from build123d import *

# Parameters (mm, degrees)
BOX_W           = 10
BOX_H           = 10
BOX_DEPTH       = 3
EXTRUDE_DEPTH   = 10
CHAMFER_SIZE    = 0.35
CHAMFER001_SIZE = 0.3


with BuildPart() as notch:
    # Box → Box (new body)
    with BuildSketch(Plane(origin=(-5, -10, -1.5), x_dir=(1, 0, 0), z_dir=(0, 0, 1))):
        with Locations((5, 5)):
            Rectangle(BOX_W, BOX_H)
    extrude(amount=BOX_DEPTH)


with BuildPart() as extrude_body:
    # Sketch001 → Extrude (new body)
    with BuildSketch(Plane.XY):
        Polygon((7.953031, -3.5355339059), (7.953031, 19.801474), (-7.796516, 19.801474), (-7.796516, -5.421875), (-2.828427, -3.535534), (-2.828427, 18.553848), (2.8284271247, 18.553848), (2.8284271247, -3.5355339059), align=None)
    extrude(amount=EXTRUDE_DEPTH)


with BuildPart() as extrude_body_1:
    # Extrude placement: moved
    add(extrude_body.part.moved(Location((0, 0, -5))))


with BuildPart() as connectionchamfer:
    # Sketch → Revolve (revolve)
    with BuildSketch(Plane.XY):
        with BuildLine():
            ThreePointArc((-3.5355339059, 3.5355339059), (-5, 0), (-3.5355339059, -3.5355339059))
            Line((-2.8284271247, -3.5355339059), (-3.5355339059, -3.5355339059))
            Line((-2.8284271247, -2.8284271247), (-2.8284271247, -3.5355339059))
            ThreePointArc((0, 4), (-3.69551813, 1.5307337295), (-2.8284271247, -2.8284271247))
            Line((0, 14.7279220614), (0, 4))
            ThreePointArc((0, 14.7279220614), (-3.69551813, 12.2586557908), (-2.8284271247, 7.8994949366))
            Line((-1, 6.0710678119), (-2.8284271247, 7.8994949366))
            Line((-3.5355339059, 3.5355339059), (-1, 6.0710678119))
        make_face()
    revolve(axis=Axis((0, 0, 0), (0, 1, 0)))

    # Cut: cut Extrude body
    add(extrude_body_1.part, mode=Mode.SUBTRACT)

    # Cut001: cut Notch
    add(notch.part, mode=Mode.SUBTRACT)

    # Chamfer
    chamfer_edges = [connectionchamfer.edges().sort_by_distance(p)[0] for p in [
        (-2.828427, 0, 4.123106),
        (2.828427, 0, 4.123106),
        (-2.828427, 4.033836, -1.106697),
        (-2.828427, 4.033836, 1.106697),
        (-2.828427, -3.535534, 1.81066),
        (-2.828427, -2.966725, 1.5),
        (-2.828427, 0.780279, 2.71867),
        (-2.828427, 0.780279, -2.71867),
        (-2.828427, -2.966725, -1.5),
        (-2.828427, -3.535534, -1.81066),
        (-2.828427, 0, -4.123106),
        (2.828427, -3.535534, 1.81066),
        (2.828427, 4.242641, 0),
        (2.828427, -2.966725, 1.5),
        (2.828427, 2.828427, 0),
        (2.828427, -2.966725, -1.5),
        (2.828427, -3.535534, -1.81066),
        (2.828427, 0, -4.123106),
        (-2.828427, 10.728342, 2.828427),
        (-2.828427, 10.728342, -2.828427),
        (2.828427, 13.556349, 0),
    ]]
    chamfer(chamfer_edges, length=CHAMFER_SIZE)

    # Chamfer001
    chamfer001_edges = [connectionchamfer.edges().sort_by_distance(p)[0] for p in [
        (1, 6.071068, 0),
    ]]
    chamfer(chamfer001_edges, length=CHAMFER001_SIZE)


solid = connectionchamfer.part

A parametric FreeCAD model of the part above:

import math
import FreeCAD as App
import Part
import Sketcher
Q = App.Units.Quantity


def edges_at(feature, points):
    """Names of the edges that pass closest to the given points."""
    edges = feature.Shape.Edges
    near = lambda p: min(range(len(edges)), key=lambda i: edges[i].distToShape(Part.Vertex(*p))[0])
    return sorted({f"Edge{near(p) + 1}" for p in points})

doc = App.newDocument("Part")
body = doc.addObject("PartDesign::Body", "Body")

sketch1 = body.newObject("Sketcher::SketchObject", "Sketch")
sketch1.AttachmentSupport = (doc.getObject("XY_Plane"), [""])
sketch1.MapMode = "FlatFace"
sketch1.AttachmentOffset = App.Placement(App.Vector(0, 0, -1.5), App.Rotation())
sketch1.addGeometry([
    Part.LineSegment(App.Vector(-5, 0, 0), App.Vector(-5, -10, 0)),
    Part.LineSegment(App.Vector(-5, -10, 0), App.Vector(5, -10, 0)),
    Part.LineSegment(App.Vector(5, -10, 0), App.Vector(5, 0, 0)),
    Part.LineSegment(App.Vector(5, 0, 0), App.Vector(-5, 0, 0)),
], False)
sketch1.addConstraint([
    Sketcher.Constraint("Coincident", 0, 2, 1, 1),
    Sketcher.Constraint("Coincident", 1, 2, 2, 1),
    Sketcher.Constraint("Coincident", 2, 2, 3, 1),
    Sketcher.Constraint("Coincident", 3, 2, 0, 1),
    Sketcher.Constraint("Vertical", 0),
    Sketcher.Constraint("Horizontal", 1),
    Sketcher.Constraint("Vertical", 2),
    Sketcher.Constraint("Horizontal", 3),
    Sketcher.Constraint("Symmetric", 2, 2, 3, 2, -1, 1),
    Sketcher.Constraint("Equal", 3, 0),
    Sketcher.Constraint("DistanceX", 1, 1, 1, 2, Q("10 mm")),
])
pad1 = body.newObject("PartDesign::Pad", "Pad")
pad1.Profile = sketch1
pad1.Length = 3
body2 = doc.addObject("PartDesign::Body", "Body001")

sketch2 = body2.newObject("Sketcher::SketchObject", "Sketch001")
sketch2.AttachmentSupport = (doc.getObject("XY_Plane001"), [""])
sketch2.MapMode = "FlatFace"
sketch2.addGeometry([
    Part.LineSegment(App.Vector(8, -4, 0), App.Vector(8, 20, 0)),
    Part.LineSegment(App.Vector(8, 20, 0), App.Vector(-8, 20, 0)),
    Part.LineSegment(App.Vector(-8, 20, 0), App.Vector(-8, -5, 0)),
    Part.LineSegment(App.Vector(-8, -5, 0), App.Vector(-3, -4, 0)),
    Part.LineSegment(App.Vector(-3, -4, 0), App.Vector(-3, 19, 0)),
    Part.LineSegment(App.Vector(-3, 19, 0), App.Vector(3, 19, 0)),
    Part.LineSegment(App.Vector(3, 19, 0), App.Vector(3, -4, 0)),
    Part.LineSegment(App.Vector(3, -4, 0), App.Vector(8, -4, 0)),
], False)
sketch2.addConstraint([
    Sketcher.Constraint("Coincident", 0, 2, 1, 1),
    Sketcher.Constraint("Coincident", 1, 2, 2, 1),
    Sketcher.Constraint("Coincident", 2, 2, 3, 1),
    Sketcher.Constraint("Coincident", 3, 2, 4, 1),
    Sketcher.Constraint("Coincident", 4, 2, 5, 1),
    Sketcher.Constraint("Coincident", 5, 2, 6, 1),
    Sketcher.Constraint("Coincident", 6, 2, 7, 1),
    Sketcher.Constraint("Coincident", 7, 2, 0, 1),
    Sketcher.Constraint("Vertical", 0),
    Sketcher.Constraint("Horizontal", 1),
    Sketcher.Constraint("Vertical", 2),
    Sketcher.Constraint("Vertical", 4),
    Sketcher.Constraint("Horizontal", 5),
    Sketcher.Constraint("Vertical", 6),
    Sketcher.Constraint("Horizontal", 7),
    Sketcher.Constraint("Symmetric", 3, 2, 6, 2, -2),
    Sketcher.Constraint("DistanceY", 2, 2, 2, 1, Q("25.223349 mm")),
    Sketcher.Constraint("DistanceY", 6, 2, 6, 1, Q("22.089382 mm")),
    Sketcher.Constraint("Distance", 3, Q("5.31415 mm")),
    Sketcher.Constraint("DistanceX", 1, 2, 1, 1, Q("15.749547 mm")),
    Sketcher.Constraint("DistanceX", 5, 1, 5, 2, Q("5.656854 mm")),
    Sketcher.Constraint("DistanceX", 7, 1, 7, 2, Q("5.124604 mm")),
    Sketcher.Constraint("DistanceY", -1, 1, 0, 2, Q("19.801474 mm")),
])
pad2 = body2.newObject("PartDesign::Pad", "Pad001")
pad2.Profile = sketch2
pad2.Length = 10
body3 = doc.addObject("PartDesign::Body", "Body002")
doc.recompute()

body2.Placement = App.Placement(App.Vector(0, 0, -5), App.Rotation(App.Vector(0, 0, 1), 0))
boolean = body3.newObject("PartDesign::Boolean", "Boolean")
boolean.Type = "Fuse"
boolean.addObjects([body2])
body4 = doc.addObject("PartDesign::Body", "Body003")

sketch3 = body4.newObject("Sketcher::SketchObject", "Sketch002")
sketch3.AttachmentSupport = (doc.getObject("XY_Plane003"), [""])
sketch3.MapMode = "FlatFace"
sketch3.addGeometry([
    Part.ArcOfCircle(Part.Circle(App.Vector(0, 0, 0), App.Vector(0, 0, 1), 5), math.radians(135), math.radians(225)),
    Part.LineSegment(App.Vector(-3.5, -3.5, 0), App.Vector(-2.8, -3.5, 0)),
    Part.LineSegment(App.Vector(-2.8, -3.5, 0), App.Vector(-2.8, -2.8, 0)),
    Part.ArcOfCircle(Part.Circle(App.Vector(0, 0, 0), App.Vector(0, 0, 1), 4), math.radians(90), math.radians(225)),
    Part.LineSegment(App.Vector(0, 4, 0), App.Vector(0, 14.7, 0)),
    Part.ArcOfCircle(Part.Circle(App.Vector(0, 10.7, 0), App.Vector(0, 0, 1), 4), math.radians(90), math.radians(225)),
    Part.LineSegment(App.Vector(-2.8, 7.9, 0), App.Vector(-1, 6.1, 0)),
    Part.LineSegment(App.Vector(-1, 6.1, 0), App.Vector(-3.5, 3.5, 0)),
], False)
sketch3.addConstraint([
    Sketcher.Constraint("Coincident", 0, 2, 1, 1),
    Sketcher.Constraint("Coincident", 1, 2, 2, 1),
    Sketcher.Constraint("Coincident", 2, 2, 3, 2),
    Sketcher.Constraint("Coincident", 3, 1, 4, 1),
    Sketcher.Constraint("Coincident", 4, 2, 5, 1),
    Sketcher.Constraint("Tangent", 5, 2, 6, 1),
    Sketcher.Constraint("Coincident", 6, 2, 7, 1),
    Sketcher.Constraint("Tangent", 7, 2, 0, 1),
    Sketcher.Constraint("Horizontal", 1),
    Sketcher.Constraint("Vertical", 2),
    Sketcher.Constraint("Vertical", 4),
    Sketcher.Constraint("Coincident", 0, 3, -1, 1),
    Sketcher.Constraint("Coincident", 3, 3, -1, 1),
    Sketcher.Constraint("Equal", 3, 5),
    Sketcher.Constraint("PointOnObject", 5, 3, -2),
    Sketcher.Constraint("PointOnObject", 3, 1, -2),
    Sketcher.Constraint("Perpendicular", 6, 7),
    Sketcher.Constraint("Vertical", 2, 2, 5, 2),
    Sketcher.Constraint("Vertical", 0, 2, 7, 2),
    Sketcher.Constraint("Equal", 1, 2),
    Sketcher.Constraint("Radius", 0, Q("5 mm")),
    Sketcher.Constraint("Radius", 3, Q("4 mm")),
    Sketcher.Constraint("DistanceX", 6, 2, -1, 1, Q("1 mm")),
])
revolution = body4.newObject("PartDesign::Revolution", "Revolution")
revolution.Profile = sketch3
revolution.ReferenceAxis = (sketch3, ["V_Axis"])
revolution.Angle = 360
doc.recompute()

boolean2 = body4.newObject("PartDesign::Boolean", "Boolean001")
boolean2.Type = "Cut"
boolean2.addObjects([body3])
doc.recompute()

boolean3 = body4.newObject("PartDesign::Boolean", "Boolean002")
boolean3.Type = "Cut"
boolean3.addObjects([body])
doc.recompute()

chamfer = body4.newObject("PartDesign::Chamfer", "Chamfer")
chamfer.Base = (boolean3, edges_at(boolean3, [
    (-2.828, 0, 4.123),
    (2.828, 0, 4.123),
    (-2.828, 4.034, -1.107),
    (-2.828, 4.034, 1.107),
    (-2.828, -3.536, 1.811),
    (-2.828, -2.967, 1.5),
    (-2.828, 0.78, 2.719),
    (-2.828, 0.78, -2.719),
    (-2.828, -2.967, -1.5),
    (-2.828, -3.536, -1.811),
    (-2.828, 0, -4.123),
    (2.828, -3.536, 1.811),
    (2.828, 4.243, 0),
    (2.828, -2.967, 1.5),
    (2.828, 2.828, 0),
    (2.828, -2.967, -1.5),
    (2.828, -3.536, -1.811),
    (2.828, 0, -4.123),
    (-2.828, 10.728, 2.828),
    (-2.828, 10.728, -2.828),
    (2.828, 13.556, 0),
]))
chamfer.Size = 0.35
doc.recompute()

chamfer2 = body4.newObject("PartDesign::Chamfer", "Chamfer001")
chamfer2.Base = (chamfer, edges_at(chamfer, [(1, 6.071, 0)]))
chamfer2.Size = 0.3

doc.recompute()
